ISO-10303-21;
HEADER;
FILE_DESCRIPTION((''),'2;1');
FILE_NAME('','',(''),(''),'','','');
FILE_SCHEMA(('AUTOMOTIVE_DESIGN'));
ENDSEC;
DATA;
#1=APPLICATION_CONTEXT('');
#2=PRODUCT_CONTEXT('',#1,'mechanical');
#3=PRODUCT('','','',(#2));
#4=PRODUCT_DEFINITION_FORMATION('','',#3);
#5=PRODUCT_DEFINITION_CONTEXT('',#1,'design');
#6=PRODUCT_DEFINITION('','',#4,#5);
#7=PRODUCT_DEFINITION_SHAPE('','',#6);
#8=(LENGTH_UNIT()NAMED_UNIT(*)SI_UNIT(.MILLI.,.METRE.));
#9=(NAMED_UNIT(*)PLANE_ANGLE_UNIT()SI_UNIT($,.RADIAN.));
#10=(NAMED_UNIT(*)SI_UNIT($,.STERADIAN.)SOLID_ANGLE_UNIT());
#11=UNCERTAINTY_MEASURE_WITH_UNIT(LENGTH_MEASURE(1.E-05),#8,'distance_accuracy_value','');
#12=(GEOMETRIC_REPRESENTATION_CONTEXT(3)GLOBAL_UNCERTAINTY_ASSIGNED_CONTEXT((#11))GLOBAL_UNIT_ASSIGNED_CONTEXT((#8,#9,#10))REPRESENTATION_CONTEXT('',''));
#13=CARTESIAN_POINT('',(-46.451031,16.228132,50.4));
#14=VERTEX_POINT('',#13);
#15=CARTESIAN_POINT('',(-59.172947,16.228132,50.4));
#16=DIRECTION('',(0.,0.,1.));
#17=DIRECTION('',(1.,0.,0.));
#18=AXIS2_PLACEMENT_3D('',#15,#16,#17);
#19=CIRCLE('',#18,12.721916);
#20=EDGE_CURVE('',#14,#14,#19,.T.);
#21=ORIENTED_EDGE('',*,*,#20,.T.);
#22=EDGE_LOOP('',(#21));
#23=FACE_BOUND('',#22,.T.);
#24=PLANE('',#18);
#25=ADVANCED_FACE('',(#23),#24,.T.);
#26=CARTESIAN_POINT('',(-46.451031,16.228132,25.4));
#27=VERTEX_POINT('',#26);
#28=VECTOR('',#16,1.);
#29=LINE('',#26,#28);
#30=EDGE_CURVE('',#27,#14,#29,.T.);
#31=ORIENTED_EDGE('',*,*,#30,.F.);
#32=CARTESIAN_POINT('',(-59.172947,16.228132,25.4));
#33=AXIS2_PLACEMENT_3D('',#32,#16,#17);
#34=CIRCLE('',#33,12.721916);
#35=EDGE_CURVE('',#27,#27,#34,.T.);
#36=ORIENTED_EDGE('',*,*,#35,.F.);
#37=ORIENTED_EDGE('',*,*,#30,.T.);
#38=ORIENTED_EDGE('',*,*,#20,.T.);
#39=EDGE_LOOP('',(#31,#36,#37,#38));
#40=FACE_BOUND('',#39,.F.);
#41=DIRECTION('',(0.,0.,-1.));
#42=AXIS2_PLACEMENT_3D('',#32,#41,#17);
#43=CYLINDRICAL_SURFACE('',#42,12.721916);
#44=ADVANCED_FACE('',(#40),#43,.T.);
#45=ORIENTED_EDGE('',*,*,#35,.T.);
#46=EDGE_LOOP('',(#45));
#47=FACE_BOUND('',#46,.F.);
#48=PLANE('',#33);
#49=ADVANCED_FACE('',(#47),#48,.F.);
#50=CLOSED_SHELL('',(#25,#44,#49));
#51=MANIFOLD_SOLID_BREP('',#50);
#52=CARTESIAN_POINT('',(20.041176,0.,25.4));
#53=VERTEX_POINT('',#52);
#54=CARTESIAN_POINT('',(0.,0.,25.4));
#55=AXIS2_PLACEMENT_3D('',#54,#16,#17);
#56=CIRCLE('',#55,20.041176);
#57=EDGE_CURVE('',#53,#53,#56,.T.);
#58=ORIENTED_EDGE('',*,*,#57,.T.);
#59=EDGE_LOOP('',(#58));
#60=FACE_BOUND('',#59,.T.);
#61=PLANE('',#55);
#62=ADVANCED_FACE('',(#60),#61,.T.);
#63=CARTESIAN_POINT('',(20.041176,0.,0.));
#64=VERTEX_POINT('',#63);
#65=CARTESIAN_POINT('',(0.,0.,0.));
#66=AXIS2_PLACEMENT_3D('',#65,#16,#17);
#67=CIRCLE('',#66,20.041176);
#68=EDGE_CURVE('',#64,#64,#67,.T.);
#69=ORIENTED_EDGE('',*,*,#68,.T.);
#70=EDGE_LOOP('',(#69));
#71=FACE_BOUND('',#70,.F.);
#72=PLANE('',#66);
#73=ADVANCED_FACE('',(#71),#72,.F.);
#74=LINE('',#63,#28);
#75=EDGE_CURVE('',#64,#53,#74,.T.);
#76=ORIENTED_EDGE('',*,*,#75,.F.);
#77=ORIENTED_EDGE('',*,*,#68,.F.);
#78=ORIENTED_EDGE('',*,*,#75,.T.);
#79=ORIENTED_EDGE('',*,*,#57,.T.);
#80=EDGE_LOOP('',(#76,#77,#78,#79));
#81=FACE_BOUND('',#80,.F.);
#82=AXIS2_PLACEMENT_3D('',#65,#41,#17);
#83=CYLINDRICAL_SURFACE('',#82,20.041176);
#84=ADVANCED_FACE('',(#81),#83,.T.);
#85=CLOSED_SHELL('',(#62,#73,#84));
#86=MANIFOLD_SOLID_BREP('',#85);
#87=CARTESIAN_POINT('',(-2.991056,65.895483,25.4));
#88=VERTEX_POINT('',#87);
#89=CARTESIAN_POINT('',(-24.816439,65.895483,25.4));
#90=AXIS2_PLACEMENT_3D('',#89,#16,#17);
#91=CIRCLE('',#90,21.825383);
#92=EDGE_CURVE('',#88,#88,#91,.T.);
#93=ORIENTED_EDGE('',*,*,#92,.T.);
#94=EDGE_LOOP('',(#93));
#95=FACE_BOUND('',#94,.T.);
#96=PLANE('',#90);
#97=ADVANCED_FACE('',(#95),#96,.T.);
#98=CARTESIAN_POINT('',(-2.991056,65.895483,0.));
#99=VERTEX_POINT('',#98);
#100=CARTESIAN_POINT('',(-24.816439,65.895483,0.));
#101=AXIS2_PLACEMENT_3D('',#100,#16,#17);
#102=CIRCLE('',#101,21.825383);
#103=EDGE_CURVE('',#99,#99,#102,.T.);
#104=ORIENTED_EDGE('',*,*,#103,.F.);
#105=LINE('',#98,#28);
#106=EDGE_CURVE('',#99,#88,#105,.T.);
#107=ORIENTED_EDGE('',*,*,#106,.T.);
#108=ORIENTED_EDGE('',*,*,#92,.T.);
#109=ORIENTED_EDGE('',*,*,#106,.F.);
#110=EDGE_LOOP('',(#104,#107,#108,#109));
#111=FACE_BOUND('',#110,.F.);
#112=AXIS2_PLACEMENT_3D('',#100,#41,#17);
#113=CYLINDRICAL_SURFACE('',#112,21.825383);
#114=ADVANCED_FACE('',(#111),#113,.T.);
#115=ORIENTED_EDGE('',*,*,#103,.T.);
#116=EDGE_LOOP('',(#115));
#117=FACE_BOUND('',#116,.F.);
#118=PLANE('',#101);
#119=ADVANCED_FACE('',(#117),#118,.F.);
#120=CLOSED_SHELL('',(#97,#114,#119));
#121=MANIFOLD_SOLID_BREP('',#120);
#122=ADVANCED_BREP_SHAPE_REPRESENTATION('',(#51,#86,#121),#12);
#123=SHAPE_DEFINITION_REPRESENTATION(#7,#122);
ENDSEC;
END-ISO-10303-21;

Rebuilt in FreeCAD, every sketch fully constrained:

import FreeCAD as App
import Part
import Sketcher

V = App.Vector

doc = App.newDocument("Part")
body = doc.addObject("PartDesign::Body", "Body")
body.AllowCompound = True

# Sketch on XY plane
sketch1 = body.newObject("Sketcher::SketchObject", "Sketch")
sketch1.AttachmentSupport = (doc.getObject("XY_Plane"), [""])
sketch1.MapMode = "FlatFace"
sketch1.addGeometry([
    Part.Circle(V(0, 0, 0), V(0, 0, 1), 20),
    Part.Circle(V(-25, 66, 0), V(0, 0, 1), 22),
], False)
sketch1.addConstraint([
    Sketcher.Constraint("Coincident", 0, 3, -1, 1),
    Sketcher.Constraint("Diameter", 0, 40.082352),
    Sketcher.Constraint("Diameter", 1, 43.650766),
    Sketcher.Constraint("DistanceX", 1, 3, -1, 1, 24.816439),
    Sketcher.Constraint("DistanceY", -1, 1, 1, 3, 65.895483),
])
pad1 = body.newObject("PartDesign::Pad", "Pad")
pad1.Profile = sketch1
pad1.Length = 25.4
body2 = doc.addObject("PartDesign::Body", "Body001")

# Sketch on XY plane
sketch2 = body2.newObject("Sketcher::SketchObject", "Sketch001")
sketch2.AttachmentSupport = (doc.getObject("XY_Plane001"), [""])
sketch2.MapMode = "FlatFace"
sketch2.AttachmentOffset = App.Placement(V(0, 0, 25.4), App.Rotation())
sketch2.addGeometry(Part.Circle(V(-59, 16, 0), V(0, 0, 1), 13), False)
sketch2.addConstraint([
    Sketcher.Constraint("Diameter", 0, 25.443832),
    Sketcher.Constraint("DistanceY", -1, 1, 0, 3, 16.228132),
    Sketcher.Constraint("DistanceX", 0, 3, -1, 1, 59.172947),
])
pad2 = body2.newObject("PartDesign::Pad", "Pad001")
pad2.Profile = sketch2
pad2.Length = 25

doc.recompute()
